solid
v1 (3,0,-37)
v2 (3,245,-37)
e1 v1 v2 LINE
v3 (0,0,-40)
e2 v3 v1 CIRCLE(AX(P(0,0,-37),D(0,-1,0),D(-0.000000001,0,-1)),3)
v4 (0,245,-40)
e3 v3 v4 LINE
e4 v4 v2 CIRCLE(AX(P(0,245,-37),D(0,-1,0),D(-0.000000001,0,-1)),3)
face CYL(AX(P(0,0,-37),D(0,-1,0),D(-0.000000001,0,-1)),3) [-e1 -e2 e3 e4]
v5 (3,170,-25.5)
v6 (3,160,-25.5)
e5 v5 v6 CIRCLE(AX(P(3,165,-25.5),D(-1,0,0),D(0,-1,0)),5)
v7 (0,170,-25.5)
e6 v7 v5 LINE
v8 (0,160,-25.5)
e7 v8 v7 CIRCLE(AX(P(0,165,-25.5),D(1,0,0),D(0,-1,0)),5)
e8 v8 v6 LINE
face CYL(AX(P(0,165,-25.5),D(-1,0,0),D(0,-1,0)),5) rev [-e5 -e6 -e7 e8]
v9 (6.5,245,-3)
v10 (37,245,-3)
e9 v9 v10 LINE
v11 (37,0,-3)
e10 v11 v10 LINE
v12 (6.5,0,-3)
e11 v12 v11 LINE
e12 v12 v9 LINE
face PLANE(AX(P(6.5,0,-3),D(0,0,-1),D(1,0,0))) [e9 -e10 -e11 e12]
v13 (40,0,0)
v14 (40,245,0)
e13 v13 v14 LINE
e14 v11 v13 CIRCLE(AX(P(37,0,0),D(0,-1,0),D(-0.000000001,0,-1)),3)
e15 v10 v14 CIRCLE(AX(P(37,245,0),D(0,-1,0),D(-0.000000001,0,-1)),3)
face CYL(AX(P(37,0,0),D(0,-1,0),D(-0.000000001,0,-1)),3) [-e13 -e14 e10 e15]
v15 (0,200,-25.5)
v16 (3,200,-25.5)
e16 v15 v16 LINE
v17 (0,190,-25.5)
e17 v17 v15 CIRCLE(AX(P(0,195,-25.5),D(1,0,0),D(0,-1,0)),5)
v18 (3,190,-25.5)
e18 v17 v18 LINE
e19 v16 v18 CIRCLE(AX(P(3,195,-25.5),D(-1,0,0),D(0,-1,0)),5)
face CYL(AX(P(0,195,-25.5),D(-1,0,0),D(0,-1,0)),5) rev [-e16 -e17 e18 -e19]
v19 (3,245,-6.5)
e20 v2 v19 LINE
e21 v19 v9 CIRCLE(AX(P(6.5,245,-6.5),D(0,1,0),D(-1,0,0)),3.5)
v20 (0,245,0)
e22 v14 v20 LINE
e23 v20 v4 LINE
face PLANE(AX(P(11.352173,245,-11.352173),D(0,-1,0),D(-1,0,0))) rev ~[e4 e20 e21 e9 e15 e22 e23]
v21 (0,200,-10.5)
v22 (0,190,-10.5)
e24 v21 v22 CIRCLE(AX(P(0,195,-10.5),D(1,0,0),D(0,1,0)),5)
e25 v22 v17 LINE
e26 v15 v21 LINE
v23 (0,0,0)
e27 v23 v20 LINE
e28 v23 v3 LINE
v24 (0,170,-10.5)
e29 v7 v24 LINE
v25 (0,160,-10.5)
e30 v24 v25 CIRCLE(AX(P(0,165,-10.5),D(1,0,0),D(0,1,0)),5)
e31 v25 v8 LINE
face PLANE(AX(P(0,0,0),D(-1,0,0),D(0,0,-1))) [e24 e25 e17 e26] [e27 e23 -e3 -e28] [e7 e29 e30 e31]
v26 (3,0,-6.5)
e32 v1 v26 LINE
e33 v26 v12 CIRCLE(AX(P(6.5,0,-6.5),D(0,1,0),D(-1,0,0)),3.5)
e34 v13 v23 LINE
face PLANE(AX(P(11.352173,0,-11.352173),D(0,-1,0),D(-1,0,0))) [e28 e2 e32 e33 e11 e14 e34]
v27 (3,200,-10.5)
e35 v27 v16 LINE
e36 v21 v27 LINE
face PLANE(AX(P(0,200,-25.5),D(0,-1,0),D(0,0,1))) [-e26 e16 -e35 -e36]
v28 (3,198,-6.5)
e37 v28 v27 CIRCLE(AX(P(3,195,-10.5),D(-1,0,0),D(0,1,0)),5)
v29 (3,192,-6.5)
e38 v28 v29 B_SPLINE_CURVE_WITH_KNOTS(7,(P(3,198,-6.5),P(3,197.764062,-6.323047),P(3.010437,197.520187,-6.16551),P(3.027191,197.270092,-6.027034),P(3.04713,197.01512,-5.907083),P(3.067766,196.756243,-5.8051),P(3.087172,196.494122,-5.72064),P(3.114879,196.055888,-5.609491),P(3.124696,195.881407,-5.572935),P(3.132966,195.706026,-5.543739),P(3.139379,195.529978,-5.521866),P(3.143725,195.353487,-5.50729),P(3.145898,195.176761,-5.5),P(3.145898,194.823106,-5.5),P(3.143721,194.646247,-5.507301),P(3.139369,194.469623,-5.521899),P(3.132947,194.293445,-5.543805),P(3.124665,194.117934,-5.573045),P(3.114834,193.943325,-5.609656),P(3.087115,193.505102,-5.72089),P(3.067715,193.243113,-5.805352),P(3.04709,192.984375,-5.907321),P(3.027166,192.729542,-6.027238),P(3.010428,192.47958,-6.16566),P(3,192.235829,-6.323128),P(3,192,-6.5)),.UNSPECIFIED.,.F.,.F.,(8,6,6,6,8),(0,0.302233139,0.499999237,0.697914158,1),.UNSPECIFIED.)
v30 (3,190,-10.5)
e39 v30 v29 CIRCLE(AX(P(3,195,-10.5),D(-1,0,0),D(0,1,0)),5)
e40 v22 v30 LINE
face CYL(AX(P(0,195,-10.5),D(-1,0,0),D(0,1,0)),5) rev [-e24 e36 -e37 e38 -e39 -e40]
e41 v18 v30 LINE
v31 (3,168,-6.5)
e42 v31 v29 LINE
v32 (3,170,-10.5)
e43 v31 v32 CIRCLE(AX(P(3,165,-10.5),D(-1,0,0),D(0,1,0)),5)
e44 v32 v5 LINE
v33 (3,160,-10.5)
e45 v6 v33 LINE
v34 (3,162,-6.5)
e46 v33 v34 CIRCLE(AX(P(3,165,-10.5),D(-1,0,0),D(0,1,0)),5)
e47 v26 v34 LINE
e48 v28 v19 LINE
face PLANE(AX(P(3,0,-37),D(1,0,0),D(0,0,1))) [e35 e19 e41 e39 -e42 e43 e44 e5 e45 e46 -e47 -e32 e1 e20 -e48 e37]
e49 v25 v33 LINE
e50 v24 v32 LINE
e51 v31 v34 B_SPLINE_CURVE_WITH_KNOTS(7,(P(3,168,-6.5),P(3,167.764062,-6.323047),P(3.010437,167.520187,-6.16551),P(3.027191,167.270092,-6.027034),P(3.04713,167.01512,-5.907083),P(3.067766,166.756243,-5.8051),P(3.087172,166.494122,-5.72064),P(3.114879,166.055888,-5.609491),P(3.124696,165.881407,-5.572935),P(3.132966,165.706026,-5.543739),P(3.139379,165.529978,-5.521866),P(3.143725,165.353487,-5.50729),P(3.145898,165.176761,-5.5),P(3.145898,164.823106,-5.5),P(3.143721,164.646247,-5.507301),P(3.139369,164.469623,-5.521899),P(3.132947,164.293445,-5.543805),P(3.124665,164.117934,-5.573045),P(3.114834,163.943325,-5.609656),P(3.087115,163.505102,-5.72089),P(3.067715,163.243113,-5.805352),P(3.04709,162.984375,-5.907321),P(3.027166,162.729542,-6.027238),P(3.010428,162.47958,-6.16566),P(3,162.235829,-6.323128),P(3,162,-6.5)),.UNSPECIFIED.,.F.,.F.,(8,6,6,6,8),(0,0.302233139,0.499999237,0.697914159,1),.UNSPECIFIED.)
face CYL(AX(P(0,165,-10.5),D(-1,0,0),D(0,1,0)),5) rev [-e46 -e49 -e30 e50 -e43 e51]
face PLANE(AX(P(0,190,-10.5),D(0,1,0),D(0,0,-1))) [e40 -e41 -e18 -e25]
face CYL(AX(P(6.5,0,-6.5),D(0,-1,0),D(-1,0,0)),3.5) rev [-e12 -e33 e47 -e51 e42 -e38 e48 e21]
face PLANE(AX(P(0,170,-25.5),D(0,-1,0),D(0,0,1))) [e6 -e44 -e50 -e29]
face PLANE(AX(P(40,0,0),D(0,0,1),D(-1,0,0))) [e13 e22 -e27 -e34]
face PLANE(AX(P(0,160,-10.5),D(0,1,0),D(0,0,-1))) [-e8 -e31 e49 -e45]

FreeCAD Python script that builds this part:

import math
import FreeCAD as App
import Part
import Sketcher
from FreeCAD import Vector
Q = App.Units.Quantity

doc = App.newDocument("Part")
body = doc.addObject("PartDesign::Body", "Body")

# Sketch on XZ plane
sketch1 = body.newObject("Sketcher::SketchObject", "Sketch")
sketch1.AttachmentSupport = (doc.getObject("XZ_Plane"), [""])
sketch1.MapMode = "FlatFace"
sketch1.addGeometry(Part.LineSegment(Vector(0, -40, 0), Vector(0, 0, 0)), False)
sketch1.addGeometry(Part.LineSegment(Vector(0, 0, 0), Vector(40, 0, 0)), False)
sketch1.addGeometry(Part.ArcOfCircle(Part.Circle(Vector(37, 0, 0), Vector(0, 0, 1), 3), math.radians(-90), math.radians(0)), False)
sketch1.addGeometry(Part.LineSegment(Vector(37, -3, 0), Vector(6.5, -3, 0)), False)
sketch1.addGeometry(Part.ArcOfCircle(Part.Circle(Vector(6.5, -6.5, 0), Vector(0, 0, 1), 3.5), math.radians(90), math.radians(180)), False)
sketch1.addGeometry(Part.LineSegment(Vector(3, -6.5, 0), Vector(3, -37, 0)), False)
sketch1.addGeometry(Part.ArcOfCircle(Part.Circle(Vector(0, -37, 0), Vector(0, 0, 1), 3), math.radians(-90), math.radians(0)), False)
sketch1.addConstraint(Sketcher.Constraint("Coincident", 0, 2, 1, 1))
sketch1.addConstraint(Sketcher.Constraint("Coincident", 1, 2, 2, 2))
sketch1.addConstraint(Sketcher.Constraint("Tangent", 2, 1, 3, 1))
sketch1.addConstraint(Sketcher.Constraint("Tangent", 3, 2, 4, 1))
sketch1.addConstraint(Sketcher.Constraint("Tangent", 4, 2, 5, 1))
sketch1.addConstraint(Sketcher.Constraint("Tangent", 5, 2, 6, 2))
sketch1.addConstraint(Sketcher.Constraint("Coincident", 6, 1, 0, 1))
sketch1.addConstraint(Sketcher.Constraint("Vertical", 0))
sketch1.addConstraint(Sketcher.Constraint("Horizontal", 1))
sketch1.addConstraint(Sketcher.Constraint("Horizontal", 3))
sketch1.addConstraint(Sketcher.Constraint("Vertical", 5))
sketch1.addConstraint(Sketcher.Constraint("Coincident", 0, 2, -1, 1))
sketch1.addConstraint(Sketcher.Constraint("Equal", 2, 6))
sketch1.addConstraint(Sketcher.Constraint("PointOnObject", 2, 3, -1))
sketch1.addConstraint(Sketcher.Constraint("PointOnObject", 6, 3, -2))
sketch1.addConstraint(Sketcher.Constraint("Equal", 1, 0))
sketch1.addConstraint(Sketcher.Constraint("Radius", 2, Q("3 mm")))
sketch1.addConstraint(Sketcher.Constraint("Radius", 4, Q("3.5 mm")))
sketch1.addConstraint(Sketcher.Constraint("DistanceX", 1, 1, 1, 2, Q("40 mm")))
pad1 = body.newObject("PartDesign::Pad", "Pad")
pad1.Profile = sketch1
pad1.Length = 245
pad1.Reversed = True

# Sketch on YZ plane
sketch2 = body.newObject("Sketcher::SketchObject", "Sketch001")
sketch2.AttachmentSupport = (doc.getObject("YZ_Plane"), [""])
sketch2.MapMode = "FlatFace"
sketch2.addGeometry(Part.LineSegment(Vector(170, -10, 0), Vector(170, -26, 0)), False)
sketch2.addGeometry(Part.ArcOfCircle(Part.Circle(Vector(165, -26, 0), Vector(0, 0, 1), 5), math.radians(180), math.radians(360)), False)
sketch2.addGeometry(Part.LineSegment(Vector(160, -26, 0), Vector(160, -10, 0)), False)
sketch2.addGeometry(Part.ArcOfCircle(Part.Circle(Vector(165, -10, 0), Vector(0, 0, 1), 5), math.radians(0), math.radians(180)), False)
sketch2.addGeometry(Part.LineSegment(Vector(200, -10, 0), Vector(200, -26, 0)), False)
sketch2.addGeometry(Part.ArcOfCircle(Part.Circle(Vector(195, -26, 0), Vector(0, 0, 1), 5), math.radians(180), math.radians(360)), False)
sketch2.addGeometry(Part.LineSegment(Vector(190, -26, 0), Vector(190, -10, 0)), False)
sketch2.addGeometry(Part.ArcOfCircle(Part.Circle(Vector(195, -10, 0), Vector(0, 0, 1), 5), math.radians(0), math.radians(180)), False)
sketch2.addConstraint(Sketcher.Constraint("Tangent", 0, 2, 1, 2))
sketch2.addConstraint(Sketcher.Constraint("Tangent", 1, 1, 2, 1))
sketch2.addConstraint(Sketcher.Constraint("Tangent", 2, 2, 3, 2))
sketch2.addConstraint(Sketcher.Constraint("Tangent", 3, 1, 0, 1))
sketch2.addConstraint(Sketcher.Constraint("Tangent", 4, 2, 5, 2))
sketch2.addConstraint(Sketcher.Constraint("Tangent", 5, 1, 6, 1))
sketch2.addConstraint(Sketcher.Constraint("Tangent", 6, 2, 7, 2))
sketch2.addConstraint(Sketcher.Constraint("Tangent", 7, 1, 4, 1))
sketch2.addConstraint(Sketcher.Constraint("Vertical", 0))
sketch2.addConstraint(Sketcher.Constraint("Vertical", 2))
sketch2.addConstraint(Sketcher.Constraint("Vertical", 4))
sketch2.addConstraint(Sketcher.Constraint("Vertical", 6))
sketch2.addConstraint(Sketcher.Constraint("Equal", 3, 5))
sketch2.addConstraint(Sketcher.Constraint("Horizontal", 1, 3, 5, 3))
sketch2.addConstraint(Sketcher.Constraint("Horizontal", 3, 3, 7, 3))
sketch2.addConstraint(Sketcher.Constraint("Radius", 1, Q("5 mm")))
sketch2.addConstraint(Sketcher.Constraint("DistanceY", 0, 2, 0, 1, Q("15 mm")))
sketch2.addConstraint(Sketcher.Constraint("DistanceX", -1, 1, 1, 3, Q("165 mm")))
sketch2.addConstraint(Sketcher.Constraint("DistanceX", -1, 1, 5, 3, Q("195 mm")))
sketch2.addConstraint(Sketcher.Constraint("DistanceY", 1, 3, -1, 1, Q("25.5 mm")))
pocket1 = body.newObject("PartDesign::Pocket", "Pocket")
pocket1.Profile = sketch2
pocket1.Length = 10
pocket1.Reversed = True

doc.recompute()
